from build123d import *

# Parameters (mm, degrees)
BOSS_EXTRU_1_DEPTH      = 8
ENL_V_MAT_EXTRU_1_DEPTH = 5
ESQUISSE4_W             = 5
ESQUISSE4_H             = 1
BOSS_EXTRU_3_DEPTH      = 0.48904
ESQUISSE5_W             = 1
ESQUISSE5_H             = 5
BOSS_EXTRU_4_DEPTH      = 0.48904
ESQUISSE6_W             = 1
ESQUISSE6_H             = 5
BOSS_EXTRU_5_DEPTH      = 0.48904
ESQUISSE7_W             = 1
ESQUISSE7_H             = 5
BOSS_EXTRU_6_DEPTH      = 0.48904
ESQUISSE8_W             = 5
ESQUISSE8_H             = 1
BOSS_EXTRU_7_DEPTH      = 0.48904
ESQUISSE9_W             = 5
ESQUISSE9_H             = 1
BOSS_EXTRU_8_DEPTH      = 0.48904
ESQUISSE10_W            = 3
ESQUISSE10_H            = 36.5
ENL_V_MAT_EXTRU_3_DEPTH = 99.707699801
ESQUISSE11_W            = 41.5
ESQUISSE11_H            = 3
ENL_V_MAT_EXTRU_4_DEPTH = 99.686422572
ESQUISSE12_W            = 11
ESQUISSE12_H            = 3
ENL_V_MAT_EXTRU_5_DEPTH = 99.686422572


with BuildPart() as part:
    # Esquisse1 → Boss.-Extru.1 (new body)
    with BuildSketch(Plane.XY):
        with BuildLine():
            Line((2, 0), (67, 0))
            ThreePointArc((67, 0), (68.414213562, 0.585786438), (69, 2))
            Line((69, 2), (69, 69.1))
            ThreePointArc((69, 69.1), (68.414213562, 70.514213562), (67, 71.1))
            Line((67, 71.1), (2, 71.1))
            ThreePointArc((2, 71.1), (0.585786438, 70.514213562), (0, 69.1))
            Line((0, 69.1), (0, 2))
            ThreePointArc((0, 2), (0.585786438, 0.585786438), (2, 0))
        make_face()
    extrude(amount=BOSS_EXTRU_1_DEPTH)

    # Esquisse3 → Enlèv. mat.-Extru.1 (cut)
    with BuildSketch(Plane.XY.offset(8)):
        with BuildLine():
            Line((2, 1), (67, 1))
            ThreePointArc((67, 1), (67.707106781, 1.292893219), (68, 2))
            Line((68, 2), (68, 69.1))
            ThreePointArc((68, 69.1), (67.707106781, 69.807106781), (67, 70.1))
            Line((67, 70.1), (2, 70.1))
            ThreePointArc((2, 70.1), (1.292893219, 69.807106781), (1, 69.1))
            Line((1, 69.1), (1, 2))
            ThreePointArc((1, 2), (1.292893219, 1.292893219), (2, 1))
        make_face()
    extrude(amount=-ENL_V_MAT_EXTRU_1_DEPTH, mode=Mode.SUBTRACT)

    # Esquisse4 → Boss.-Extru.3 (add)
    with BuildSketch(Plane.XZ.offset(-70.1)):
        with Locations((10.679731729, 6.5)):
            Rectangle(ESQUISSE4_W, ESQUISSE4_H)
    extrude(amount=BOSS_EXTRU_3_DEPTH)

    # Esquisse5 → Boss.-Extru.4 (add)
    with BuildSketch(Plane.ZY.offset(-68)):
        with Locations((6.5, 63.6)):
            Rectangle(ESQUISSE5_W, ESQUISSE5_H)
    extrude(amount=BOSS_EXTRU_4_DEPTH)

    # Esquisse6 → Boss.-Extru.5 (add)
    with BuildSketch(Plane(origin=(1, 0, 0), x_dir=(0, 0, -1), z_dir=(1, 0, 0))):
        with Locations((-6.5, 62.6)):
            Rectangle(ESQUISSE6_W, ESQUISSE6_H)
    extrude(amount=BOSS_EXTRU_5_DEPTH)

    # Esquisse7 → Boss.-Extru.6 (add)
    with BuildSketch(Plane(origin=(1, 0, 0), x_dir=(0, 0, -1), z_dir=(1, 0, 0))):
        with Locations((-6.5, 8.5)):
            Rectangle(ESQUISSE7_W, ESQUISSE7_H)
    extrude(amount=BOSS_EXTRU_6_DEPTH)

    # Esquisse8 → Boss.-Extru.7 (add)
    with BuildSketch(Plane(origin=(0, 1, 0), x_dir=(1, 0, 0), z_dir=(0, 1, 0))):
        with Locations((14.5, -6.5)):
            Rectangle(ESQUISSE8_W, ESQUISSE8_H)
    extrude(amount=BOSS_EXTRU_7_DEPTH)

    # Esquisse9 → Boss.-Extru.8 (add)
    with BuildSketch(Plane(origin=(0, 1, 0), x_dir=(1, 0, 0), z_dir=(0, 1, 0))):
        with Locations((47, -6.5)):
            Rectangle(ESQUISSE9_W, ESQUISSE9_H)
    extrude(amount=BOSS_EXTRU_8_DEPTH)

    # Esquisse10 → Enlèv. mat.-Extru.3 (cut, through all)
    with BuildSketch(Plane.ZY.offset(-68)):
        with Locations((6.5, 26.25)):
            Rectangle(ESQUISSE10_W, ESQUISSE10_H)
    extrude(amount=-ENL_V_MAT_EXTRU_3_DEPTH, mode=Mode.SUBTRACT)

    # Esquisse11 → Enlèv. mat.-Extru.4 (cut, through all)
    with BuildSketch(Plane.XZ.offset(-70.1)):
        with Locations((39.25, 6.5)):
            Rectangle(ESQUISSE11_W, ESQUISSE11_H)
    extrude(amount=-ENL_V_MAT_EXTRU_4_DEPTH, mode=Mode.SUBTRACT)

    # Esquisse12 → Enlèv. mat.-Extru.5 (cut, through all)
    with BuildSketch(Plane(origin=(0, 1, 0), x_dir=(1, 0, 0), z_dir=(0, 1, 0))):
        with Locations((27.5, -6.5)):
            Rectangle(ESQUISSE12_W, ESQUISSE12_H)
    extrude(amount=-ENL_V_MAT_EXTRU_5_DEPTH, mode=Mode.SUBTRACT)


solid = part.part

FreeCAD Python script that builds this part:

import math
import FreeCAD as App
import Part
import Sketcher
from FreeCAD import Vector
Q = App.Units.Quantity


def add_polygon(sketch, points):
    """Adds a closed chain of lines whose ends are joined by coincident constraints."""
    first, n = sketch.GeometryCount, len(points)
    for a, b in zip(points, points[1:] + points[:1]):
        sketch.addGeometry(Part.LineSegment(App.Vector(*a, 0), App.Vector(*b, 0)), False)
    for i in range(n):
        sketch.addConstraint(Sketcher.Constraint("Coincident", first + i, 2, first + (i + 1) % n, 1))

doc = App.newDocument("Part")
body = doc.addObject("PartDesign::Body", "Body")

# Sketch on XY plane
sketch1 = doc.addObject("Sketcher::SketchObject", "Sketch")
body.addObject(sketch1)
sketch1.AttachmentSupport = (doc.XY_Plane, [""])
sketch1.MapMode = "FlatFace"
sketch1.addGeometry(Part.LineSegment(Vector(2, 0, 0), Vector(67, 0, 0)), False)
sketch1.addGeometry(Part.ArcOfCircle(Part.Circle(Vector(67, 2, 0), Vector(0, 0, 1), 2), math.radians(-90), math.radians(0)), False)
sketch1.addGeometry(Part.LineSegment(Vector(69, 2, 0), Vector(69, 69.1, 0)), False)
sketch1.addGeometry(Part.ArcOfCircle(Part.Circle(Vector(67, 69.1, 0), Vector(0, 0, 1), 2), math.radians(0), math.radians(90)), False)
sketch1.addGeometry(Part.LineSegment(Vector(67, 71.1, 0), Vector(2, 71.1, 0)), False)
sketch1.addGeometry(Part.ArcOfCircle(Part.Circle(Vector(2, 69.1, 0), Vector(0, 0, 1), 2), math.radians(90), math.radians(180)), False)
sketch1.addGeometry(Part.LineSegment(Vector(0, 69.1, 0), Vector(0, 2, 0)), False)
sketch1.addGeometry(Part.ArcOfCircle(Part.Circle(Vector(2, 2, 0), Vector(0, 0, 1), 2), math.radians(-180), math.radians(-90)), False)
sketch1.addConstraint(Sketcher.Constraint("Tangent", 0, 2, 1, 1))
sketch1.addConstraint(Sketcher.Constraint("Tangent", 1, 2, 2, 1))
sketch1.addConstraint(Sketcher.Constraint("Tangent", 2, 2, 3, 1))
sketch1.addConstraint(Sketcher.Constraint("Tangent", 3, 2, 4, 1))
sketch1.addConstraint(Sketcher.Constraint("Tangent", 4, 2, 5, 1))
sketch1.addConstraint(Sketcher.Constraint("Tangent", 5, 2, 6, 1))
sketch1.addConstraint(Sketcher.Constraint("Tangent", 6, 2, 7, 1))
sketch1.addConstraint(Sketcher.Constraint("Tangent", 7, 2, 0, 1))
sketch1.addConstraint(Sketcher.Constraint("Horizontal", 0))
sketch1.addConstraint(Sketcher.Constraint("Vertical", 2))
sketch1.addConstraint(Sketcher.Constraint("Horizontal", 4))
sketch1.addConstraint(Sketcher.Constraint("Vertical", 6))
sketch1.addConstraint(Sketcher.Constraint("Equal", 1, 3))
sketch1.addConstraint(Sketcher.Constraint("Equal", 3, 5))
sketch1.addConstraint(Sketcher.Constraint("Equal", 5, 7))
sketch1.addConstraint(Sketcher.Constraint("PointOnObject", 0, 2, -1))
sketch1.addConstraint(Sketcher.Constraint("PointOnObject", 5, 2, -2))
sketch1.addConstraint(Sketcher.Constraint("Radius", 1, Q("2 mm")))
sketch1.addConstraint(Sketcher.Constraint("DistanceX", 0, 1, 0, 2, Q("65 mm")))
sketch1.addConstraint(Sketcher.Constraint("DistanceY", 2, 1, 2, 2, Q("67.1 mm")))
pad1 = doc.addObject("PartDesign::Pad", "Pad")
body.addObject(pad1)
pad1.Profile = sketch1
pad1.Length = 8

# Sketch on XY plane
sketch2 = doc.addObject("Sketcher::SketchObject", "Sketch001")
body.addObject(sketch2)
sketch2.AttachmentSupport = (doc.XY_Plane, [""])
sketch2.MapMode = "FlatFace"
sketch2.AttachmentOffset = App.Placement(Vector(0, 0, 8), App.Rotation())
sketch2.addGeometry(Part.LineSegment(Vector(2, 1, 0), Vector(67, 1, 0)), False)
sketch2.addGeometry(Part.ArcOfCircle(Part.Circle(Vector(67, 2, 0), Vector(0, 0, 1), 1), math.radians(-90), math.radians(0)), False)
sketch2.addGeometry(Part.LineSegment(Vector(68, 2, 0), Vector(68, 69.1, 0)), False)
sketch2.addGeometry(Part.ArcOfCircle(Part.Circle(Vector(67, 69.1, 0), Vector(0, 0, 1), 1), math.radians(0), math.radians(90)), False)
sketch2.addGeometry(Part.LineSegment(Vector(67, 70.1, 0), Vector(2, 70.1, 0)), False)
sketch2.addGeometry(Part.ArcOfCircle(Part.Circle(Vector(2, 69.1, 0), Vector(0, 0, 1), 1), math.radians(90), math.radians(180)), False)
sketch2.addGeometry(Part.LineSegment(Vector(1, 69.1, 0), Vector(1, 2, 0)), False)
sketch2.addGeometry(Part.ArcOfCircle(Part.Circle(Vector(2, 2, 0), Vector(0, 0, 1), 1), math.radians(-180), math.radians(-90)), False)
sketch2.addConstraint(Sketcher.Constraint("Tangent", 0, 2, 1, 1))
sketch2.addConstraint(Sketcher.Constraint("Tangent", 1, 2, 2, 1))
sketch2.addConstraint(Sketcher.Constraint("Tangent", 2, 2, 3, 1))
sketch2.addConstraint(Sketcher.Constraint("Tangent", 3, 2, 4, 1))
sketch2.addConstraint(Sketcher.Constraint("Tangent", 4, 2, 5, 1))
sketch2.addConstraint(Sketcher.Constraint("Tangent", 5, 2, 6, 1))
sketch2.addConstraint(Sketcher.Constraint("Tangent", 6, 2, 7, 1))
sketch2.addConstraint(Sketcher.Constraint("Tangent", 7, 2, 0, 1))
sketch2.addConstraint(Sketcher.Constraint("Horizontal", 0))
sketch2.addConstraint(Sketcher.Constraint("Vertical", 2))
sketch2.addConstraint(Sketcher.Constraint("Horizontal", 4))
sketch2.addConstraint(Sketcher.Constraint("Vertical", 6))
sketch2.addConstraint(Sketcher.Constraint("Equal", 1, 3))
sketch2.addConstraint(Sketcher.Constraint("Equal", 3, 5))
sketch2.addConstraint(Sketcher.Constraint("Equal", 5, 7))
sketch2.addConstraint(Sketcher.Constraint("Radius", 1, Q("1 mm")))
sketch2.addConstraint(Sketcher.Constraint("DistanceX", 0, 1, 0, 2, Q("65 mm")))
sketch2.addConstraint(Sketcher.Constraint("DistanceY", 2, 1, 2, 2, Q("67.1 mm")))
sketch2.addConstraint(Sketcher.Constraint("DistanceX", -1, 1, 1, 3, Q("67 mm")))
sketch2.addConstraint(Sketcher.Constraint("DistanceY", -1, 1, 1, 3, Q("2 mm")))
pocket1 = doc.addObject("PartDesign::Pocket", "Pocket")
body.addObject(pocket1)
pocket1.Profile = sketch2
pocket1.Length = 5

# Sketch on XZ plane
sketch3 = doc.addObject("Sketcher::SketchObject", "Sketch002")
body.addObject(sketch3)
sketch3.AttachmentSupport = (doc.XZ_Plane, [""])
sketch3.MapMode = "FlatFace"
sketch3.AttachmentOffset = App.Placement(Vector(0, 0, -70.1), App.Rotation())
add_polygon(sketch3, [(8.2, 7), (8.2, 6), (13.2, 6), (13.2, 7)])  # lines 0-3
sketch3.addConstraint(Sketcher.Constraint("Vertical", 0))
sketch3.addConstraint(Sketcher.Constraint("Horizontal", 1))
sketch3.addConstraint(Sketcher.Constraint("Vertical", 2))
sketch3.addConstraint(Sketcher.Constraint("Horizontal", 3))
sketch3.addConstraint(Sketcher.Constraint("DistanceX", 1, 1, 1, 2, Q("5 mm")))
sketch3.addConstraint(Sketcher.Constraint("DistanceY", 0, 2, 0, 1, Q("1 mm")))
sketch3.addConstraint(Sketcher.Constraint("DistanceY", -1, 1, 0, 2, Q("6 mm")))
sketch3.addConstraint(Sketcher.Constraint("DistanceX", -1, 1, 0, 2, Q("8.179732 mm")))
pad2 = doc.addObject("PartDesign::Pad", "Pad001")
body.addObject(pad2)
pad2.Profile = sketch3
pad2.Length = 0.48904

# Sketch on YZ plane
sketch4 = doc.addObject("Sketcher::SketchObject", "Sketch003")
body.addObject(sketch4)
sketch4.AttachmentSupport = (doc.YZ_Plane, [""])
sketch4.MapMode = "FlatFace"
sketch4.AttachmentOffset = App.Placement(Vector(0, 0, 68), App.Rotation())
add_polygon(sketch4, [(66.1, 6), (61.1, 6), (61.1, 7), (66.1, 7)])  # lines 0-3
sketch4.addConstraint(Sketcher.Constraint("Horizontal", 0))
sketch4.addConstraint(Sketcher.Constraint("Vertical", 1))
sketch4.addConstraint(Sketcher.Constraint("Horizontal", 2))
sketch4.addConstraint(Sketcher.Constraint("Vertical", 3))
sketch4.addConstraint(Sketcher.Constraint("DistanceX", 0, 2, 0, 1, Q("5 mm")))
sketch4.addConstraint(Sketcher.Constraint("DistanceY", 1, 1, 1, 2, Q("1 mm")))
sketch4.addConstraint(Sketcher.Constraint("DistanceY", -1, 1, 0, 2, Q("6 mm")))
sketch4.addConstraint(Sketcher.Constraint("DistanceX", -1, 1, 0, 2, Q("61.1 mm")))
pad3 = doc.addObject("PartDesign::Pad", "Pad002")
body.addObject(pad3)
pad3.Profile = sketch4
pad3.Length = 0.48904
pad3.Reversed = True

# Sketch on YZ plane
sketch5 = doc.addObject("Sketcher::SketchObject", "Sketch004")
body.addObject(sketch5)
sketch5.AttachmentSupport = (doc.YZ_Plane, [""])
sketch5.MapMode = "FlatFace"
sketch5.AttachmentOffset = App.Placement(Vector(0, 0, 1), App.Rotation())
add_polygon(sketch5, [(65.1, 7), (60.1, 7), (60.1, 6), (65.1, 6)])  # lines 0-3
sketch5.addConstraint(Sketcher.Constraint("Horizontal", 0))
sketch5.addConstraint(Sketcher.Constraint("Vertical", 1))
sketch5.addConstraint(Sketcher.Constraint("Horizontal", 2))
sketch5.addConstraint(Sketcher.Constraint("Vertical", 3))
sketch5.addConstraint(Sketcher.Constraint("DistanceX", 0, 2, 0, 1, Q("5 mm")))
sketch5.addConstraint(Sketcher.Constraint("DistanceY", 1, 2, 1, 1, Q("1 mm")))
sketch5.addConstraint(Sketcher.Constraint("DistanceY", -1, 1, 0, 2, Q("7 mm")))
sketch5.addConstraint(Sketcher.Constraint("DistanceX", -1, 1, 0, 2, Q("60.1 mm")))
pad4 = doc.addObject("PartDesign::Pad", "Pad003")
body.addObject(pad4)
pad4.Profile = sketch5
pad4.Length = 0.48904

# Sketch on YZ plane
sketch6 = doc.addObject("Sketcher::SketchObject", "Sketch005")
body.addObject(sketch6)
sketch6.AttachmentSupport = (doc.YZ_Plane, [""])
sketch6.MapMode = "FlatFace"
sketch6.AttachmentOffset = App.Placement(Vector(0, 0, 1), App.Rotation())
add_polygon(sketch6, [(11, 7), (6, 7), (6, 6), (11, 6)])  # lines 0-3
sketch6.addConstraint(Sketcher.Constraint("Horizontal", 0))
sketch6.addConstraint(Sketcher.Constraint("Vertical", 1))
sketch6.addConstraint(Sketcher.Constraint("Horizontal", 2))
sketch6.addConstraint(Sketcher.Constraint("Vertical", 3))
sketch6.addConstraint(Sketcher.Constraint("DistanceX", 0, 2, 0, 1, Q("5 mm")))
sketch6.addConstraint(Sketcher.Constraint("DistanceY", 1, 2, 1, 1, Q("1 mm")))
sketch6.addConstraint(Sketcher.Constraint("DistanceX", -1, 1, 0, 2, Q("6 mm")))
sketch6.addConstraint(Sketcher.Constraint("DistanceY", -1, 1, 0, 2, Q("7 mm")))
pad5 = doc.addObject("PartDesign::Pad", "Pad004")
body.addObject(pad5)
pad5.Profile = sketch6
pad5.Length = 0.48904

# Sketch on XZ plane
sketch7 = doc.addObject("Sketcher::SketchObject", "Sketch006")
body.addObject(sketch7)
sketch7.AttachmentSupport = (doc.XZ_Plane, [""])
sketch7.MapMode = "FlatFace"
sketch7.AttachmentOffset = App.Placement(Vector(0, 0, -1), App.Rotation())
add_polygon(sketch7, [(12, 6), (12, 7), (17, 7), (17, 6)])  # lines 0-3
sketch7.addConstraint(Sketcher.Constraint("Vertical", 0))
sketch7.addConstraint(Sketcher.Constraint("Horizontal", 1))
sketch7.addConstraint(Sketcher.Constraint("Vertical", 2))
sketch7.addConstraint(Sketcher.Constraint("Horizontal", 3))
sketch7.addConstraint(Sketcher.Constraint("DistanceX", 1, 1, 1, 2, Q("5 mm")))
sketch7.addConstraint(Sketcher.Constraint("DistanceY", 0, 1, 0, 2, Q("1 mm")))
sketch7.addConstraint(Sketcher.Constraint("DistanceX", -1, 1, 0, 2, Q("12 mm")))
sketch7.addConstraint(Sketcher.Constraint("DistanceY", -1, 1, 0, 2, Q("7 mm")))
pad6 = doc.addObject("PartDesign::Pad", "Pad005")
body.addObject(pad6)
pad6.Profile = sketch7
pad6.Length = 0.48904
pad6.Reversed = True

# Sketch on XZ plane
sketch8 = doc.addObject("Sketcher::SketchObject", "Sketch007")
body.addObject(sketch8)
sketch8.AttachmentSupport = (doc.XZ_Plane, [""])
sketch8.MapMode = "FlatFace"
sketch8.AttachmentOffset = App.Placement(Vector(0, 0, -1), App.Rotation())
add_polygon(sketch8, [(44.5, 6), (44.5, 7), (49.5, 7), (49.5, 6)])  # lines 0-3
sketch8.addConstraint(Sketcher.Constraint("Vertical", 0))
sketch8.addConstraint(Sketcher.Constraint("Horizontal", 1))
sketch8.addConstraint(Sketcher.Constraint("Vertical", 2))
sketch8.addConstraint(Sketcher.Constraint("Horizontal", 3))
sketch8.addConstraint(Sketcher.Constraint("DistanceX", 1, 1, 1, 2, Q("5 mm")))
sketch8.addConstraint(Sketcher.Constraint("DistanceY", 0, 1, 0, 2, Q("1 mm")))
sketch8.addConstraint(Sketcher.Constraint("DistanceY", -1, 1, 0, 2, Q("7 mm")))
sketch8.addConstraint(Sketcher.Constraint("DistanceX", -1, 1, 0, 2, Q("44.5 mm")))
pad7 = doc.addObject("PartDesign::Pad", "Pad006")
body.addObject(pad7)
pad7.Profile = sketch8
pad7.Length = 0.48904
pad7.Reversed = True

# Sketch on YZ plane
sketch9 = doc.addObject("Sketcher::SketchObject", "Sketch008")
body.addObject(sketch9)
sketch9.AttachmentSupport = (doc.YZ_Plane, [""])
sketch9.MapMode = "FlatFace"
sketch9.AttachmentOffset = App.Placement(Vector(0, 0, 68), App.Rotation())
add_polygon(sketch9, [(44.5, 5), (8, 5), (8, 8), (44.5, 8)])  # lines 0-3
sketch9.addConstraint(Sketcher.Constraint("Horizontal", 0))
sketch9.addConstraint(Sketcher.Constraint("Vertical", 1))
sketch9.addConstraint(Sketcher.Constraint("Horizontal", 2))
sketch9.addConstraint(Sketcher.Constraint("Vertical", 3))
sketch9.addConstraint(Sketcher.Constraint("DistanceY", 1, 1, 1, 2, Q("3 mm")))
sketch9.addConstraint(Sketcher.Constraint("DistanceX", 0, 2, 0, 1, Q("36.5 mm")))
sketch9.addConstraint(Sketcher.Constraint("DistanceX", -1, 1, 0, 2, Q("8 mm")))
sketch9.addConstraint(Sketcher.Constraint("DistanceY", -1, 1, 0, 2, Q("5 mm")))
pocket2 = doc.addObject("PartDesign::Pocket", "Pocket001")
body.addObject(pocket2)
pocket2.Profile = sketch9
pocket2.Type = "ThroughAll"
pocket2.Reversed = True

# Sketch on XZ plane
sketch10 = doc.addObject("Sketcher::SketchObject", "Sketch009")
body.addObject(sketch10)
sketch10.AttachmentSupport = (doc.XZ_Plane, [""])
sketch10.MapMode = "FlatFace"
sketch10.AttachmentOffset = App.Placement(Vector(0, 0, -70.1), App.Rotation())
add_polygon(sketch10, [(18.5, 8), (18.5, 5), (60, 5), (60, 8)])  # lines 0-3
sketch10.addConstraint(Sketcher.Constraint("Vertical", 0))
sketch10.addConstraint(Sketcher.Constraint("Horizontal", 1))
sketch10.addConstraint(Sketcher.Constraint("Vertical", 2))
sketch10.addConstraint(Sketcher.Constraint("Horizontal", 3))
sketch10.addConstraint(Sketcher.Constraint("DistanceY", 0, 2, 0, 1, Q("3 mm")))
sketch10.addConstraint(Sketcher.Constraint("DistanceX", 1, 1, 1, 2, Q("41.5 mm")))
sketch10.addConstraint(Sketcher.Constraint("DistanceY", -1, 1, 0, 2, Q("5 mm")))
sketch10.addConstraint(Sketcher.Constraint("DistanceX", -1, 1, 1, 2, Q("60 mm")))
pocket3 = doc.addObject("PartDesign::Pocket", "Pocket002")
body.addObject(pocket3)
pocket3.Profile = sketch10
pocket3.Type = "ThroughAll"

# Sketch on XZ plane
sketch11 = doc.addObject("Sketcher::SketchObject", "Sketch010")
body.addObject(sketch11)
sketch11.AttachmentSupport = (doc.XZ_Plane, [""])
sketch11.MapMode = "FlatFace"
sketch11.AttachmentOffset = App.Placement(Vector(0, 0, -1), App.Rotation())
add_polygon(sketch11, [(22, 5), (22, 8), (33, 8), (33, 5)])  # lines 0-3
sketch11.addConstraint(Sketcher.Constraint("Vertical", 0))
sketch11.addConstraint(Sketcher.Constraint("Horizontal", 1))
sketch11.addConstraint(Sketcher.Constraint("Vertical", 2))
sketch11.addConstraint(Sketcher.Constraint("Horizontal", 3))
sketch11.addConstraint(Sketcher.Constraint("DistanceX", 1, 1, 1, 2, Q("11 mm")))
sketch11.addConstraint(Sketcher.Constraint("DistanceY", 0, 1, 0, 2, Q("3 mm")))
sketch11.addConstraint(Sketcher.Constraint("DistanceX", -1, 1, 0, 2, Q("22 mm")))
sketch11.addConstraint(Sketcher.Constraint("DistanceY", -1, 1, 0, 2, Q("8 mm")))
pocket4 = doc.addObject("PartDesign::Pocket", "Pocket003")
body.addObject(pocket4)
pocket4.Profile = sketch11
pocket4.Type = "ThroughAll"
pocket4.Reversed = True

doc.recompute()
